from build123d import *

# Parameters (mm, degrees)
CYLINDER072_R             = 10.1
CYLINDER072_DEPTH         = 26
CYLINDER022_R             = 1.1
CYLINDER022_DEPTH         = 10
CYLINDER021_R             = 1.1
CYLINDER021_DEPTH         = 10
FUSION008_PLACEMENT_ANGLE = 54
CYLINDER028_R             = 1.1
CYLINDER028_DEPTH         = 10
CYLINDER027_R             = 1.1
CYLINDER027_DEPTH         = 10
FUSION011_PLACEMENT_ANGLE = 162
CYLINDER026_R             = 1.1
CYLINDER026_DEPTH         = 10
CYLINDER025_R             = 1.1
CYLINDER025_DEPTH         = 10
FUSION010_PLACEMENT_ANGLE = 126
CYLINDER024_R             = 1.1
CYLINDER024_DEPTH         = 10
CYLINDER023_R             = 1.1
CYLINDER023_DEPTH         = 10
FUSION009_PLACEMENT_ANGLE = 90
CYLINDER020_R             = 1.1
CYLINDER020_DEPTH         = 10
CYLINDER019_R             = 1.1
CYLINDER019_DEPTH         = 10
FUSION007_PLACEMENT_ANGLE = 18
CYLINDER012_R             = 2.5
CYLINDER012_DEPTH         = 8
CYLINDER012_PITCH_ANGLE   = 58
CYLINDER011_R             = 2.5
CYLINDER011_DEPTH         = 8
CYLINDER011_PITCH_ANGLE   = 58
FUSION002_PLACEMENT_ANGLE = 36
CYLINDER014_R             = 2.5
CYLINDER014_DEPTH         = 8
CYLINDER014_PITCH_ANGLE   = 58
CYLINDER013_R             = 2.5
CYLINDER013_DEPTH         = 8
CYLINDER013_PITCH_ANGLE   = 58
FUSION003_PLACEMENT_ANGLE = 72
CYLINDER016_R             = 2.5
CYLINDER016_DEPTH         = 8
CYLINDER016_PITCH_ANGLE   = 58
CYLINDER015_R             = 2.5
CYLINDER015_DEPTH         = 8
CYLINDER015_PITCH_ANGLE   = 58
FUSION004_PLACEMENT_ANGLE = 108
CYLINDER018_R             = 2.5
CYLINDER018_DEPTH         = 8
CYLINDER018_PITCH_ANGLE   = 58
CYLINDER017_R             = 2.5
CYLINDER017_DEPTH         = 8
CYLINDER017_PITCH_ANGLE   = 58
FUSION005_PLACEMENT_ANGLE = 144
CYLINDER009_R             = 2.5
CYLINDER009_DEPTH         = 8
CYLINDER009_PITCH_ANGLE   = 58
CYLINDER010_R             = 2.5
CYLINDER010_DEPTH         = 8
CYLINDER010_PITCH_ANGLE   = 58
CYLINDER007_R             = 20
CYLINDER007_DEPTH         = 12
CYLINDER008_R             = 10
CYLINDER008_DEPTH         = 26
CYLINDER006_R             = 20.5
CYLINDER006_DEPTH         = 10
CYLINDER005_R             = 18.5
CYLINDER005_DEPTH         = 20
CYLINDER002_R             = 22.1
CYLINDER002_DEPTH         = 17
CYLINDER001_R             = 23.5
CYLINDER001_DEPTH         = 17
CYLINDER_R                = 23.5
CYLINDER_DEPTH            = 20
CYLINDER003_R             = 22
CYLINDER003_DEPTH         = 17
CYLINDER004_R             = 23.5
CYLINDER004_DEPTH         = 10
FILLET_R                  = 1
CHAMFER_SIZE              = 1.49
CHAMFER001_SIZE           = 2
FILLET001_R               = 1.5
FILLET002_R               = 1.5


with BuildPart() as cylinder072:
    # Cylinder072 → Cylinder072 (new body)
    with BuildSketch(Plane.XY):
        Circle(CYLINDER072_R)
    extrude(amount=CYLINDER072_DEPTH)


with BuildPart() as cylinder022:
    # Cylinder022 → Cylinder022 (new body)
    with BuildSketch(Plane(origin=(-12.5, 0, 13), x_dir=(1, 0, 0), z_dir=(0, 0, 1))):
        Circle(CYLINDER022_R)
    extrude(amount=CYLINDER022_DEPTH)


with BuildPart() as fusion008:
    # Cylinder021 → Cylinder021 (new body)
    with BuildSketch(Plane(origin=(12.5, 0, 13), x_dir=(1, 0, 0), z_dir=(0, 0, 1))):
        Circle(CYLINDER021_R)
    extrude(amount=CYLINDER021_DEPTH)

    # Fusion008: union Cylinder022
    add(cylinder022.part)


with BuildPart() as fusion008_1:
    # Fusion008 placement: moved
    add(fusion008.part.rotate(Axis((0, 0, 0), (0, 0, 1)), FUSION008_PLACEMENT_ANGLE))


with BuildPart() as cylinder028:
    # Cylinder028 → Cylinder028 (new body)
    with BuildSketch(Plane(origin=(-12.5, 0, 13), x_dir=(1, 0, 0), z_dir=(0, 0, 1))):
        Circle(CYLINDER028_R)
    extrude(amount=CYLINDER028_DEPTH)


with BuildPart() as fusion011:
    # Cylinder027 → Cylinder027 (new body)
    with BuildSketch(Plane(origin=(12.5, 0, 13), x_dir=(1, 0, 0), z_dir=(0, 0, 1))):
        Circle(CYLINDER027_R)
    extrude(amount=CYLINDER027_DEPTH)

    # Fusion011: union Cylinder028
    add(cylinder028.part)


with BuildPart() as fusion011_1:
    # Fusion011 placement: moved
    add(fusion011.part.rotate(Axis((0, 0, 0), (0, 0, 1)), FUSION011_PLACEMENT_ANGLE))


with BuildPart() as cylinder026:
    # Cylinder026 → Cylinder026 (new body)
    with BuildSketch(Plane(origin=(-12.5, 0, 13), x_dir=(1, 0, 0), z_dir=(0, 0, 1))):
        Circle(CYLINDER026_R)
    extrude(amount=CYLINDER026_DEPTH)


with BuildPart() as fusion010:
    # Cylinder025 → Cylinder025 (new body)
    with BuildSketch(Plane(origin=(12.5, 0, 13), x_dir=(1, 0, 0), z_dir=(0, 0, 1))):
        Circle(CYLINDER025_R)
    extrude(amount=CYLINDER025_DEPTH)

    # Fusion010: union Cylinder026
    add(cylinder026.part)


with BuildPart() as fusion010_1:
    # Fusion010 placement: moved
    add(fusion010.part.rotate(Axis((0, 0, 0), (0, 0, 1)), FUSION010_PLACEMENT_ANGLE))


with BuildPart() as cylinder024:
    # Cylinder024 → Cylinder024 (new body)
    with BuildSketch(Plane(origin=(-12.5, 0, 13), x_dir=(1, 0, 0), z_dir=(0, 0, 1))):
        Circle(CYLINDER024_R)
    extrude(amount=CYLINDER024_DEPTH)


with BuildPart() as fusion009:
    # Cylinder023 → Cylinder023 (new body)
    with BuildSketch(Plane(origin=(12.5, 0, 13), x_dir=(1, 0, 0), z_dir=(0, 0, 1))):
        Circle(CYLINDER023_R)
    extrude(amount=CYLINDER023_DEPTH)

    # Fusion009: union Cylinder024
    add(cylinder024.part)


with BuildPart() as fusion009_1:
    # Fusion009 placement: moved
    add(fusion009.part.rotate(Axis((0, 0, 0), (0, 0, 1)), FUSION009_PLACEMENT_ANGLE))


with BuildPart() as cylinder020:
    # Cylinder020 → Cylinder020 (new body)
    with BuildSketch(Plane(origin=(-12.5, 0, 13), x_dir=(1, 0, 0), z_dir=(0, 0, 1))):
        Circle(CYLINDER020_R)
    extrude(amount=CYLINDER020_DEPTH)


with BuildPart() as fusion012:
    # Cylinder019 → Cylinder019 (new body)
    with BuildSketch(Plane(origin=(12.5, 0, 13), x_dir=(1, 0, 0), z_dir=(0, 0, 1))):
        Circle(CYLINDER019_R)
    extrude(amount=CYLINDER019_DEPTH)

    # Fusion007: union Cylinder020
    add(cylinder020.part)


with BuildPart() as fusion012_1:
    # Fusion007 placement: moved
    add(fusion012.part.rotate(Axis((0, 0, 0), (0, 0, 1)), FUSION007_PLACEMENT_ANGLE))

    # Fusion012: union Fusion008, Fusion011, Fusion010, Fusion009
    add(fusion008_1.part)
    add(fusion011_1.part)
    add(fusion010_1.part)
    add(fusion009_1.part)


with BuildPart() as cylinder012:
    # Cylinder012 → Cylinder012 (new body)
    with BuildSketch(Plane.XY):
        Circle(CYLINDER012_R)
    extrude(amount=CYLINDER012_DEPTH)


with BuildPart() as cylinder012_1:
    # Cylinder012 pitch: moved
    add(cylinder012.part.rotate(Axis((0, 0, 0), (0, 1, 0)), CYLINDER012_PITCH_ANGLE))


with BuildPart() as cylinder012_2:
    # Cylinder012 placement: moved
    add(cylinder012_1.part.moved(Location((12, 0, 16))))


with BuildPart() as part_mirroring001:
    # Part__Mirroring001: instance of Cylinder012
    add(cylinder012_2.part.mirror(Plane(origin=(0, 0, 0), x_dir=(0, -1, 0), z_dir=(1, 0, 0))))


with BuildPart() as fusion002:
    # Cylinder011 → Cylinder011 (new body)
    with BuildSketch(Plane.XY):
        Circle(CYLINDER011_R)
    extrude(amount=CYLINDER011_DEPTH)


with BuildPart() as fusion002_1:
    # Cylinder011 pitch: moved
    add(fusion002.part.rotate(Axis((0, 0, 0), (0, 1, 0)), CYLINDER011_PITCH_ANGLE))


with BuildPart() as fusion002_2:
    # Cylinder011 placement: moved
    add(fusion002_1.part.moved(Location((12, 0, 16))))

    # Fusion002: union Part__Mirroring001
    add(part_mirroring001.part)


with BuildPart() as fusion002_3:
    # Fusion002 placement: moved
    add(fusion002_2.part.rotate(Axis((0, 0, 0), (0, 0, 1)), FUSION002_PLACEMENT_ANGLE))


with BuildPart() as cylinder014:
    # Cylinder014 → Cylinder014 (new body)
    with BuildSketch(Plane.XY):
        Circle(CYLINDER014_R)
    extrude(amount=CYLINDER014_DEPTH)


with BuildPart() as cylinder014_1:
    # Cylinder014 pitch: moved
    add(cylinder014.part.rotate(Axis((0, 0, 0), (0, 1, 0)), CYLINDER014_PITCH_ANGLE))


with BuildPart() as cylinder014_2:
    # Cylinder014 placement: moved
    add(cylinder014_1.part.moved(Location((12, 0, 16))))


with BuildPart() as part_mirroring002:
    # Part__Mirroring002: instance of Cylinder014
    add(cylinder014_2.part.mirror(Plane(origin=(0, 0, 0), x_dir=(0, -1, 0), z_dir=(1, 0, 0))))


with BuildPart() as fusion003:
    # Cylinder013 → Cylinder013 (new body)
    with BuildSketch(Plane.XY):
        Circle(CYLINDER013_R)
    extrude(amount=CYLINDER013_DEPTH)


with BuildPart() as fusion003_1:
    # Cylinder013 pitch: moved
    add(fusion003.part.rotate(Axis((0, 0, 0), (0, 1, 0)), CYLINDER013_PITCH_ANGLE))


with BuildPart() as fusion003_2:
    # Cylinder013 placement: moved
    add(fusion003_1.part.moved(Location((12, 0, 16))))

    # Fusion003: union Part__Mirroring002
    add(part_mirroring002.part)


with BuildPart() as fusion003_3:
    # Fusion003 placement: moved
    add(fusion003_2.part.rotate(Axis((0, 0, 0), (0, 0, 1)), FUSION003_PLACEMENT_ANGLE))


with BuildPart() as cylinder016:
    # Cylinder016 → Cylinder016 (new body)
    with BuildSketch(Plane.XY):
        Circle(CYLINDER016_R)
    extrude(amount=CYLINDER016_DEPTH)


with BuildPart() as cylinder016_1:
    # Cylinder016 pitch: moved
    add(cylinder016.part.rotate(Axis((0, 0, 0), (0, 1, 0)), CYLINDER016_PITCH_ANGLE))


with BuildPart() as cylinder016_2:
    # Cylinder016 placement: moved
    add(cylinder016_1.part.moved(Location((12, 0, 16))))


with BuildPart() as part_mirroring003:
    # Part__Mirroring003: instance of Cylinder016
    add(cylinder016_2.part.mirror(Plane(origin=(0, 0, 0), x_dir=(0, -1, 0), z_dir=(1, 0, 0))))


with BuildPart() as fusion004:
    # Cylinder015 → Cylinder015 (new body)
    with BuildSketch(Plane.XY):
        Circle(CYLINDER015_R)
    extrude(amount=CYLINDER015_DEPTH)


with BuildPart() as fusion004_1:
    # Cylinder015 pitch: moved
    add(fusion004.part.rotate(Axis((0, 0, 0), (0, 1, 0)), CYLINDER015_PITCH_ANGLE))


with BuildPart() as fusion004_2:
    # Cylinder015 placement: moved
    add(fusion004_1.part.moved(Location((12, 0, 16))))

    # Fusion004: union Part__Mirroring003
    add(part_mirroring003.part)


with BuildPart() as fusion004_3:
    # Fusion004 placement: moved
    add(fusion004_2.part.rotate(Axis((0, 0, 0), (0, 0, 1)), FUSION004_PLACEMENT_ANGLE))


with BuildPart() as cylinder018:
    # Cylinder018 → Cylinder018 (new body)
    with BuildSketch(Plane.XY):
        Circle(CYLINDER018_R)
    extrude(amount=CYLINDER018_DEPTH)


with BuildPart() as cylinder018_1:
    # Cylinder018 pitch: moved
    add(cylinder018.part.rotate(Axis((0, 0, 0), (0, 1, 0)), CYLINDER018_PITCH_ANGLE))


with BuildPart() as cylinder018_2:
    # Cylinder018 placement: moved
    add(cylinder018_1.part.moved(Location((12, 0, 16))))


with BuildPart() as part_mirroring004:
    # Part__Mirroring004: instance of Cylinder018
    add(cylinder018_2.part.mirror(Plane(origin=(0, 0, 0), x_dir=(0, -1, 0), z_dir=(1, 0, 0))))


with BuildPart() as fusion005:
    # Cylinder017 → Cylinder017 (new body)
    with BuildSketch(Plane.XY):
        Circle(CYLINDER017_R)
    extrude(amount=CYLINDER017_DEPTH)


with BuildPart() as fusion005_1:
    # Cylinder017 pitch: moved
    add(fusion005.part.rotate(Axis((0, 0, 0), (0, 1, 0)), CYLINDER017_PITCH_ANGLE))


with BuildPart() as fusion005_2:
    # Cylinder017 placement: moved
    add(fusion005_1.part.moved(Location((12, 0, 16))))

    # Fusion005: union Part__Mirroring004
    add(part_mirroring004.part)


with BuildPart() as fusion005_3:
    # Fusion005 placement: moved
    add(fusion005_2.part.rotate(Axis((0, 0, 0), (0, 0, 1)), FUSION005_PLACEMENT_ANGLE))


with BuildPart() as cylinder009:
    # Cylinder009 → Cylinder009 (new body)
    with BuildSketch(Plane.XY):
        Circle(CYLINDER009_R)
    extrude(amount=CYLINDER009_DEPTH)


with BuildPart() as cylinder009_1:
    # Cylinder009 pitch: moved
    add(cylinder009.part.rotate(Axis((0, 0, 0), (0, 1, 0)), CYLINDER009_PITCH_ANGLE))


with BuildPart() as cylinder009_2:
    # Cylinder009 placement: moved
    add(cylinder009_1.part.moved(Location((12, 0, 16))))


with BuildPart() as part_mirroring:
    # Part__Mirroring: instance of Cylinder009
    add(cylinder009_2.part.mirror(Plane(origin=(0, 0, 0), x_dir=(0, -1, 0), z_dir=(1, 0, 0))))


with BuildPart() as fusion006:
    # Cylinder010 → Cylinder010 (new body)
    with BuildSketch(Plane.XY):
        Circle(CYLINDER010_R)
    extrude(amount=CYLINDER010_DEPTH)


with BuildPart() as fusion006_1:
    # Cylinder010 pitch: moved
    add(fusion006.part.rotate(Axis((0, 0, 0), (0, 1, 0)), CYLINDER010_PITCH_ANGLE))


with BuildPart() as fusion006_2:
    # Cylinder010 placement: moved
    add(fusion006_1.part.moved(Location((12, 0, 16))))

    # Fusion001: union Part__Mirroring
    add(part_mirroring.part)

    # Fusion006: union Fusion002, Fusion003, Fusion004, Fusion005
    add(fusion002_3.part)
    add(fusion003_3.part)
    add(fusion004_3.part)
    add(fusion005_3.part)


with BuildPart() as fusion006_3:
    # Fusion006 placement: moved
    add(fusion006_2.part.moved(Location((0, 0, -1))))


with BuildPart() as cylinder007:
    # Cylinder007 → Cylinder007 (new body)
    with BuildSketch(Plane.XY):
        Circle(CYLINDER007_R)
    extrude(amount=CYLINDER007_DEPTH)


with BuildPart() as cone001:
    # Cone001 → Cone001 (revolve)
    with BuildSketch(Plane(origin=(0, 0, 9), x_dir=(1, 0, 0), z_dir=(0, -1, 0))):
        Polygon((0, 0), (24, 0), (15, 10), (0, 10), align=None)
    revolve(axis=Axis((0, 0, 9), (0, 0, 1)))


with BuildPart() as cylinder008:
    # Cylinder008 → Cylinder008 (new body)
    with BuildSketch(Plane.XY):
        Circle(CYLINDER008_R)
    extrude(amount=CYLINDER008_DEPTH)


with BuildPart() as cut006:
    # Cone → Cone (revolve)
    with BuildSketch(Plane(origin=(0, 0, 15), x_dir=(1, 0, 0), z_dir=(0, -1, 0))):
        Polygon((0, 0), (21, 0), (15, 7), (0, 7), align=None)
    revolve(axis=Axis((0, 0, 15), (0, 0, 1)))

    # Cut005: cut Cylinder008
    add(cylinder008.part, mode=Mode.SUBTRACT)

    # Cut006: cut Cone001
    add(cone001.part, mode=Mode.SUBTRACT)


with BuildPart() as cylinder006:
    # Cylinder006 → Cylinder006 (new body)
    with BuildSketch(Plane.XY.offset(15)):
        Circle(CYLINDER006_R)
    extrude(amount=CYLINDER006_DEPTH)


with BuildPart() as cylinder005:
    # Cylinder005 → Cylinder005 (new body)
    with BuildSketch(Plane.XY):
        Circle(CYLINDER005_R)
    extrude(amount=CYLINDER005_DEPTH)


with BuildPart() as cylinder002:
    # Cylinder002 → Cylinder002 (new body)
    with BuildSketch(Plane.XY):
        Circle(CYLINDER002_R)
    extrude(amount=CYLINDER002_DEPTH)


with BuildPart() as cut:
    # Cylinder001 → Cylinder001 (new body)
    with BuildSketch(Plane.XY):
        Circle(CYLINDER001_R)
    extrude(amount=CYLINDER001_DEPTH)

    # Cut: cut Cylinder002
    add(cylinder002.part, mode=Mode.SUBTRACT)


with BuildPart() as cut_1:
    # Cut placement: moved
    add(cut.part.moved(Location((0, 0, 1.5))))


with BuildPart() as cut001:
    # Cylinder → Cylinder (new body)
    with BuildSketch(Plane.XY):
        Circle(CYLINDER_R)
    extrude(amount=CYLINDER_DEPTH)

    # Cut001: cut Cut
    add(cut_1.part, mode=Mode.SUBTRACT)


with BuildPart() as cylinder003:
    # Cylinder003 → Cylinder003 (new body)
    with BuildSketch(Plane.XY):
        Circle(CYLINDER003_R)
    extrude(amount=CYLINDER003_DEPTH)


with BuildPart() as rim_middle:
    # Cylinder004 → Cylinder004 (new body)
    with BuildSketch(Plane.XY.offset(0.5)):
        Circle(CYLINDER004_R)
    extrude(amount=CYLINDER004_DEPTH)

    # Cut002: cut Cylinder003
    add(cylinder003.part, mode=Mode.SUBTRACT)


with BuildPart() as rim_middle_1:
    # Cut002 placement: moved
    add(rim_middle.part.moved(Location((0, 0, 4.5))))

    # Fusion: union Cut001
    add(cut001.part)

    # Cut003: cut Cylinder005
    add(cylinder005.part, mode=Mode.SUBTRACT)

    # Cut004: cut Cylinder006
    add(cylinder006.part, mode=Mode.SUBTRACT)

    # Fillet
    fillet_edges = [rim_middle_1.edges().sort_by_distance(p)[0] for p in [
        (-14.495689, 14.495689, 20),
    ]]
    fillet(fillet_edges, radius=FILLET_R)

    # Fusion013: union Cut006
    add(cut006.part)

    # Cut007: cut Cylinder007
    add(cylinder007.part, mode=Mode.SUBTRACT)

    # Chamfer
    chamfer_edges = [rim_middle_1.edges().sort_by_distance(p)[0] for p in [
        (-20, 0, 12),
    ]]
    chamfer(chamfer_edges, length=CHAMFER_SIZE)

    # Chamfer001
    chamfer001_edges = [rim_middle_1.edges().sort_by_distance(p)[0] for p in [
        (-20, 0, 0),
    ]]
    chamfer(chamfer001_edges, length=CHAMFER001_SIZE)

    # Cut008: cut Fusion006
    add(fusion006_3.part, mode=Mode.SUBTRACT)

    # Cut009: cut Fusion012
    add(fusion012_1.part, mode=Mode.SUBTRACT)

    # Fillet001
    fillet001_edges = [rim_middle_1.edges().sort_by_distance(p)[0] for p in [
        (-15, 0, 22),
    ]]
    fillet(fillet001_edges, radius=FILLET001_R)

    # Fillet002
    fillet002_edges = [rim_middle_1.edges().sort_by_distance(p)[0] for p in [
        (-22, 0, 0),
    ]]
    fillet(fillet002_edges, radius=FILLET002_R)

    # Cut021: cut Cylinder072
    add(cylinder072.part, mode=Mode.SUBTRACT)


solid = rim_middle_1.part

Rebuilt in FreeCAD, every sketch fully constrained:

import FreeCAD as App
import Part
import Sketcher
from FreeCAD import Vector
Q = App.Units.Quantity


def edges_at(feature, points):
    """Names of the edges that pass closest to the given points."""
    edges = feature.Shape.Edges
    near = lambda p: min(range(len(edges)), key=lambda i: edges[i].distToShape(Part.Vertex(*p))[0])
    return sorted({f"Edge{near(p) + 1}" for p in points})


def add_polygon(sketch, points):
    """Adds a closed chain of lines whose ends are joined by coincident constraints."""
    first, n = sketch.GeometryCount, len(points)
    for a, b in zip(points, points[1:] + points[:1]):
        sketch.addGeometry(Part.LineSegment(App.Vector(*a, 0), App.Vector(*b, 0)), False)
    for i in range(n):
        sketch.addConstraint(Sketcher.Constraint("Coincident", first + i, 2, first + (i + 1) % n, 1))

doc = App.newDocument("Part")
body = doc.addObject("PartDesign::Body", "Body")

# Sketch on XY plane
sketch1 = body.newObject("Sketcher::SketchObject", "Sketch")
sketch1.AttachmentSupport = (doc.getObject("XY_Plane"), [""])
sketch1.MapMode = "FlatFace"
sketch1.addGeometry(Part.Circle(Vector(0, 0, 0), Vector(0, 0, 1), 10), False)
sketch1.addConstraint([
    Sketcher.Constraint("Coincident", 0, 3, -1, 1),
    Sketcher.Constraint("Diameter", 0, Q("20.2 mm")),
])
pad1 = body.newObject("PartDesign::Pad", "Pad")
pad1.Profile = sketch1
pad1.Length = 26
body2 = doc.addObject("PartDesign::Body", "Body001")

# Sketch on XY plane
sketch2 = body2.newObject("Sketcher::SketchObject", "Sketch001")
sketch2.AttachmentSupport = (doc.getObject("XY_Plane001"), [""])
sketch2.MapMode = "FlatFace"
sketch2.AttachmentOffset = App.Placement(Vector(0, 0, 13), App.Rotation())
sketch2.addGeometry(Part.Circle(Vector(-12.5, 0, 0), Vector(0, 0, 1), 1.1), False)
sketch2.addConstraint([
    Sketcher.Constraint("PointOnObject", 0, 3, -1),
    Sketcher.Constraint("Diameter", 0, Q("2.2 mm")),
    Sketcher.Constraint("DistanceX", 0, 3, -1, 1, Q("12.5 mm")),
])
pad2 = body2.newObject("PartDesign::Pad", "Pad001")
pad2.Profile = sketch2
pad2.Length = 10
body3 = doc.addObject("PartDesign::Body", "Body002")
body3.AllowCompound = True

# Sketch on XY plane
sketch3 = body3.newObject("Sketcher::SketchObject", "Sketch002")
sketch3.AttachmentSupport = (doc.getObject("XY_Plane002"), [""])
sketch3.MapMode = "FlatFace"
sketch3.AttachmentOffset = App.Placement(Vector(0, 0, 13), App.Rotation())
sketch3.addGeometry(Part.Circle(Vector(12.5, 0, 0), Vector(0, 0, 1), 1.1), False)
sketch3.addConstraint([
    Sketcher.Constraint("PointOnObject", 0, 3, -1),
    Sketcher.Constraint("Diameter", 0, Q("2.2 mm")),
    Sketcher.Constraint("DistanceX", -1, 1, 0, 3, Q("12.5 mm")),
])
pad3 = body3.newObject("PartDesign::Pad", "Pad002")
pad3.Profile = sketch3
pad3.Length = 10
doc.recompute()

boolean = body3.newObject("PartDesign::Boolean", "Boolean")
boolean.Type = "Fuse"
boolean.addObjects([body2])
body4 = doc.addObject("PartDesign::Body", "Body003")
body4.AllowCompound = True
doc.recompute()

body3.Placement = App.Placement(Vector(0, 0, 0), App.Rotation(Vector(0, 0, 1), 54))
boolean2 = body4.newObject("PartDesign::Boolean", "Boolean001")
boolean2.Type = "Fuse"
boolean2.addObjects([body3])
body5 = doc.addObject("PartDesign::Body", "Body004")

# Sketch on XY plane
sketch4 = body5.newObject("Sketcher::SketchObject", "Sketch003")
sketch4.AttachmentSupport = (doc.getObject("XY_Plane004"), [""])
sketch4.MapMode = "FlatFace"
sketch4.AttachmentOffset = App.Placement(Vector(0, 0, 13), App.Rotation())
sketch4.addGeometry(Part.Circle(Vector(-12.5, 0, 0), Vector(0, 0, 1), 1.1), False)
sketch4.addConstraint([
    Sketcher.Constraint("PointOnObject", 0, 3, -1),
    Sketcher.Constraint("Diameter", 0, Q("2.2 mm")),
    Sketcher.Constraint("DistanceX", 0, 3, -1, 1, Q("12.5 mm")),
])
pad4 = body5.newObject("PartDesign::Pad", "Pad003")
pad4.Profile = sketch4
pad4.Length = 10
body6 = doc.addObject("PartDesign::Body", "Body005")
body6.AllowCompound = True

# Sketch on XY plane
sketch5 = body6.newObject("Sketcher::SketchObject", "Sketch004")
sketch5.AttachmentSupport = (doc.getObject("XY_Plane005"), [""])
sketch5.MapMode = "FlatFace"
sketch5.AttachmentOffset = App.Placement(Vector(0, 0, 13), App.Rotation())
sketch5.addGeometry(Part.Circle(Vector(12.5, 0, 0), Vector(0, 0, 1), 1.1), False)
sketch5.addConstraint([
    Sketcher.Constraint("PointOnObject", 0, 3, -1),
    Sketcher.Constraint("Diameter", 0, Q("2.2 mm")),
    Sketcher.Constraint("DistanceX", -1, 1, 0, 3, Q("12.5 mm")),
])
pad5 = body6.newObject("PartDesign::Pad", "Pad004")
pad5.Profile = sketch5
pad5.Length = 10
doc.recompute()

boolean3 = body6.newObject("PartDesign::Boolean", "Boolean002")
boolean3.Type = "Fuse"
boolean3.addObjects([body5])
body7 = doc.addObject("PartDesign::Body", "Body006")
body7.AllowCompound = True
doc.recompute()

body6.Placement = App.Placement(Vector(0, 0, 0), App.Rotation(Vector(0, 0, 1), 162))
boolean4 = body7.newObject("PartDesign::Boolean", "Boolean003")
boolean4.Type = "Fuse"
boolean4.addObjects([body6])
body8 = doc.addObject("PartDesign::Body", "Body007")

# Sketch on XY plane
sketch6 = body8.newObject("Sketcher::SketchObject", "Sketch005")
sketch6.AttachmentSupport = (doc.getObject("XY_Plane007"), [""])
sketch6.MapMode = "FlatFace"
sketch6.AttachmentOffset = App.Placement(Vector(0, 0, 13), App.Rotation())
sketch6.addGeometry(Part.Circle(Vector(-12.5, 0, 0), Vector(0, 0, 1), 1.1), False)
sketch6.addConstraint([
    Sketcher.Constraint("PointOnObject", 0, 3, -1),
    Sketcher.Constraint("Diameter", 0, Q("2.2 mm")),
    Sketcher.Constraint("DistanceX", 0, 3, -1, 1, Q("12.5 mm")),
])
pad6 = body8.newObject("PartDesign::Pad", "Pad005")
pad6.Profile = sketch6
pad6.Length = 10
body9 = doc.addObject("PartDesign::Body", "Body008")
body9.AllowCompound = True

# Sketch on XY plane
sketch7 = body9.newObject("Sketcher::SketchObject", "Sketch006")
sketch7.AttachmentSupport = (doc.getObject("XY_Plane008"), [""])
sketch7.MapMode = "FlatFace"
sketch7.AttachmentOffset = App.Placement(Vector(0, 0, 13), App.Rotation())
sketch7.addGeometry(Part.Circle(Vector(12.5, 0, 0), Vector(0, 0, 1), 1.1), False)
sketch7.addConstraint([
    Sketcher.Constraint("PointOnObject", 0, 3, -1),
    Sketcher.Constraint("Diameter", 0, Q("2.2 mm")),
    Sketcher.Constraint("DistanceX", -1, 1, 0, 3, Q("12.5 mm")),
])
pad7 = body9.newObject("PartDesign::Pad", "Pad006")
pad7.Profile = sketch7
pad7.Length = 10
doc.recompute()

boolean5 = body9.newObject("PartDesign::Boolean", "Boolean004")
boolean5.Type = "Fuse"
boolean5.addObjects([body8])
body10 = doc.addObject("PartDesign::Body", "Body009")
body10.AllowCompound = True
doc.recompute()

body9.Placement = App.Placement(Vector(0, 0, 0), App.Rotation(Vector(0, 0, 1), 126))
boolean6 = body10.newObject("PartDesign::Boolean", "Boolean005")
boolean6.Type = "Fuse"
boolean6.addObjects([body9])
body11 = doc.addObject("PartDesign::Body", "Body010")

# Sketch on XY plane
sketch8 = body11.newObject("Sketcher::SketchObject", "Sketch007")
sketch8.AttachmentSupport = (doc.getObject("XY_Plane010"), [""])
sketch8.MapMode = "FlatFace"
sketch8.AttachmentOffset = App.Placement(Vector(0, 0, 13), App.Rotation())
sketch8.addGeometry(Part.Circle(Vector(-12.5, 0, 0), Vector(0, 0, 1), 1.1), False)
sketch8.addConstraint([
    Sketcher.Constraint("PointOnObject", 0, 3, -1),
    Sketcher.Constraint("Diameter", 0, Q("2.2 mm")),
    Sketcher.Constraint("DistanceX", 0, 3, -1, 1, Q("12.5 mm")),
])
pad8 = body11.newObject("PartDesign::Pad", "Pad007")
pad8.Profile = sketch8
pad8.Length = 10
body12 = doc.addObject("PartDesign::Body", "Body011")
body12.AllowCompound = True

# Sketch on XY plane
sketch9 = body12.newObject("Sketcher::SketchObject", "Sketch008")
sketch9.AttachmentSupport = (doc.getObject("XY_Plane011"), [""])
sketch9.MapMode = "FlatFace"
sketch9.AttachmentOffset = App.Placement(Vector(0, 0, 13), App.Rotation())
sketch9.addGeometry(Part.Circle(Vector(12.5, 0, 0), Vector(0, 0, 1), 1.1), False)
sketch9.addConstraint([
    Sketcher.Constraint("PointOnObject", 0, 3, -1),
    Sketcher.Constraint("Diameter", 0, Q("2.2 mm")),
    Sketcher.Constraint("DistanceX", -1, 1, 0, 3, Q("12.5 mm")),
])
pad9 = body12.newObject("PartDesign::Pad", "Pad008")
pad9.Profile = sketch9
pad9.Length = 10
doc.recompute()

boolean7 = body12.newObject("PartDesign::Boolean", "Boolean006")
boolean7.Type = "Fuse"
boolean7.addObjects([body11])
body13 = doc.addObject("PartDesign::Body", "Body012")
body13.AllowCompound = True
doc.recompute()

body12.Placement = App.Placement(Vector(0, 0, 0), App.Rotation(Vector(0, 0, 1), 90))
boolean8 = body13.newObject("PartDesign::Boolean", "Boolean007")
boolean8.Type = "Fuse"
boolean8.addObjects([body12])
body14 = doc.addObject("PartDesign::Body", "Body013")

# Sketch on XY plane
sketch10 = body14.newObject("Sketcher::SketchObject", "Sketch009")
sketch10.AttachmentSupport = (doc.getObject("XY_Plane013"), [""])
sketch10.MapMode = "FlatFace"
sketch10.AttachmentOffset = App.Placement(Vector(0, 0, 13), App.Rotation())
sketch10.addGeometry(Part.Circle(Vector(-12.5, 0, 0), Vector(0, 0, 1), 1.1), False)
sketch10.addConstraint([
    Sketcher.Constraint("PointOnObject", 0, 3, -1),
    Sketcher.Constraint("Diameter", 0, Q("2.2 mm")),
    Sketcher.Constraint("DistanceX", 0, 3, -1, 1, Q("12.5 mm")),
])
pad10 = body14.newObject("PartDesign::Pad", "Pad009")
pad10.Profile = sketch10
pad10.Length = 10
body15 = doc.addObject("PartDesign::Body", "Body014")
body15.AllowCompound = True

# Sketch on XY plane
sketch11 = body15.newObject("Sketcher::SketchObject", "Sketch010")
sketch11.AttachmentSupport = (doc.getObject("XY_Plane014"), [""])
sketch11.MapMode = "FlatFace"
sketch11.AttachmentOffset = App.Placement(Vector(0, 0, 13), App.Rotation())
sketch11.addGeometry(Part.Circle(Vector(12.5, 0, 0), Vector(0, 0, 1), 1.1), False)
sketch11.addConstraint([
    Sketcher.Constraint("PointOnObject", 0, 3, -1),
    Sketcher.Constraint("Diameter", 0, Q("2.2 mm")),
    Sketcher.Constraint("DistanceX", -1, 1, 0, 3, Q("12.5 mm")),
])
pad11 = body15.newObject("PartDesign::Pad", "Pad010")
pad11.Profile = sketch11
pad11.Length = 10
doc.recompute()

boolean9 = body15.newObject("PartDesign::Boolean", "Boolean008")
boolean9.Type = "Fuse"
boolean9.addObjects([body14])
body16 = doc.addObject("PartDesign::Body", "Body015")
body16.AllowCompound = True
doc.recompute()

body15.Placement = App.Placement(Vector(0, 0, 0), App.Rotation(Vector(0, 0, 1), 18))
boolean10 = body16.newObject("PartDesign::Boolean", "Boolean009")
boolean10.Type = "Fuse"
boolean10.addObjects([body15])
doc.recompute()

boolean11 = body16.newObject("PartDesign::Boolean", "Boolean010")
boolean11.Type = "Fuse"
boolean11.addObjects([body4])
doc.recompute()

boolean12 = body16.newObject("PartDesign::Boolean", "Boolean011")
boolean12.Type = "Fuse"
boolean12.addObjects([body7])
doc.recompute()

boolean13 = body16.newObject("PartDesign::Boolean", "Boolean012")
boolean13.Type = "Fuse"
boolean13.addObjects([body10])
doc.recompute()

boolean14 = body16.newObject("PartDesign::Boolean", "Boolean013")
boolean14.Type = "Fuse"
boolean14.addObjects([body13])
body17 = doc.addObject("PartDesign::Body", "Body016")

# Sketch on XY plane
sketch12 = body17.newObject("Sketcher::SketchObject", "Sketch011")
sketch12.AttachmentSupport = (doc.getObject("XY_Plane016"), [""])
sketch12.MapMode = "FlatFace"
sketch12.addGeometry(Part.Circle(Vector(0, 0, 0), Vector(0, 0, 1), 2.5), False)
sketch12.addConstraint([
    Sketcher.Constraint("Coincident", 0, 3, -1, 1),
    Sketcher.Constraint("Diameter", 0, Q("5 mm")),
])
pad12 = body17.newObject("PartDesign::Pad", "Pad011")
pad12.Profile = sketch12
pad12.Length = 8
body18 = doc.addObject("PartDesign::Body", "Body017")
doc.recompute()

body17.Placement = App.Placement(Vector(0, 0, 0), App.Rotation(Vector(0, 1, 0), 58))
boolean15 = body18.newObject("PartDesign::Boolean", "Boolean014")
boolean15.Type = "Fuse"
boolean15.addObjects([body17])
body19 = doc.addObject("PartDesign::Body", "Body018")
doc.recompute()

body18.Placement = App.Placement(Vector(12, 0, 16), App.Rotation(Vector(0, 0, 1), 0))
boolean16 = body19.newObject("PartDesign::Boolean", "Boolean015")
boolean16.Type = "Fuse"
boolean16.addObjects([body18])
body20 = doc.addObject("PartDesign::Body", "Body019")
doc.recompute()

mirroring = doc.addObject("Part::Mirroring", "Mirroring")
mirroring.Source = body19
mirroring.Base = Vector(0, 0, 0)
mirroring.Normal = Vector(1, 0, 0)
body20.BaseFeature = mirroring
doc.recompute()
body21 = doc.addObject("PartDesign::Body", "Body020")

# Sketch on XY plane
sketch13 = body21.newObject("Sketcher::SketchObject", "Sketch012")
sketch13.AttachmentSupport = (doc.getObject("XY_Plane020"), [""])
sketch13.MapMode = "FlatFace"
sketch13.addGeometry(Part.Circle(Vector(0, 0, 0), Vector(0, 0, 1), 2.5), False)
sketch13.addConstraint([
    Sketcher.Constraint("Coincident", 0, 3, -1, 1),
    Sketcher.Constraint("Diameter", 0, Q("5 mm")),
])
pad13 = body21.newObject("PartDesign::Pad", "Pad012")
pad13.Profile = sketch13
pad13.Length = 8
body22 = doc.addObject("PartDesign::Body", "Body021")
doc.recompute()

body21.Placement = App.Placement(Vector(0, 0, 0), App.Rotation(Vector(0, 1, 0), 58))
boolean17 = body22.newObject("PartDesign::Boolean", "Boolean016")
boolean17.Type = "Fuse"
boolean17.addObjects([body21])
body23 = doc.addObject("PartDesign::Body", "Body022")
body23.AllowCompound = True
doc.recompute()

body22.Placement = App.Placement(Vector(12, 0, 16), App.Rotation(Vector(0, 0, 1), 0))
boolean18 = body23.newObject("PartDesign::Boolean", "Boolean017")
boolean18.Type = "Fuse"
boolean18.addObjects([body22])
doc.recompute()

boolean19 = body23.newObject("PartDesign::Boolean", "Boolean018")
boolean19.Type = "Fuse"
boolean19.addObjects([body20])
body24 = doc.addObject("PartDesign::Body", "Body023")
body24.AllowCompound = True
doc.recompute()

body23.Placement = App.Placement(Vector(0, 0, 0), App.Rotation(Vector(0, 0, 1), 36))
boolean20 = body24.newObject("PartDesign::Boolean", "Boolean019")
boolean20.Type = "Fuse"
boolean20.addObjects([body23])
body25 = doc.addObject("PartDesign::Body", "Body024")

# Sketch on XY plane
sketch14 = body25.newObject("Sketcher::SketchObject", "Sketch013")
sketch14.AttachmentSupport = (doc.getObject("XY_Plane024"), [""])
sketch14.MapMode = "FlatFace"
sketch14.addGeometry(Part.Circle(Vector(0, 0, 0), Vector(0, 0, 1), 2.5), False)
sketch14.addConstraint([
    Sketcher.Constraint("Coincident", 0, 3, -1, 1),
    Sketcher.Constraint("Diameter", 0, Q("5 mm")),
])
pad14 = body25.newObject("PartDesign::Pad", "Pad013")
pad14.Profile = sketch14
pad14.Length = 8
body26 = doc.addObject("PartDesign::Body", "Body025")
doc.recompute()

body25.Placement = App.Placement(Vector(0, 0, 0), App.Rotation(Vector(0, 1, 0), 58))
boolean21 = body26.newObject("PartDesign::Boolean", "Boolean020")
boolean21.Type = "Fuse"
boolean21.addObjects([body25])
body27 = doc.addObject("PartDesign::Body", "Body026")
doc.recompute()

body26.Placement = App.Placement(Vector(12, 0, 16), App.Rotation(Vector(0, 0, 1), 0))
boolean22 = body27.newObject("PartDesign::Boolean", "Boolean021")
boolean22.Type = "Fuse"
boolean22.addObjects([body26])
body28 = doc.addObject("PartDesign::Body", "Body027")
doc.recompute()

mirroring2 = doc.addObject("Part::Mirroring", "Mirroring001")
mirroring2.Source = body27
mirroring2.Base = Vector(0, 0, 0)
mirroring2.Normal = Vector(1, 0, 0)
body28.BaseFeature = mirroring2
doc.recompute()
body29 = doc.addObject("PartDesign::Body", "Body028")

# Sketch on XY plane
sketch15 = body29.newObject("Sketcher::SketchObject", "Sketch014")
sketch15.AttachmentSupport = (doc.getObject("XY_Plane028"), [""])
sketch15.MapMode = "FlatFace"
sketch15.addGeometry(Part.Circle(Vector(0, 0, 0), Vector(0, 0, 1), 2.5), False)
sketch15.addConstraint([
    Sketcher.Constraint("Coincident", 0, 3, -1, 1),
    Sketcher.Constraint("Diameter", 0, Q("5 mm")),
])
pad15 = body29.newObject("PartDesign::Pad", "Pad014")
pad15.Profile = sketch15
pad15.Length = 8
body30 = doc.addObject("PartDesign::Body", "Body029")
doc.recompute()

body29.Placement = App.Placement(Vector(0, 0, 0), App.Rotation(Vector(0, 1, 0), 58))
boolean23 = body30.newObject("PartDesign::Boolean", "Boolean022")
boolean23.Type = "Fuse"
boolean23.addObjects([body29])
body31 = doc.addObject("PartDesign::Body", "Body030")
body31.AllowCompound = True
doc.recompute()

body30.Placement = App.Placement(Vector(12, 0, 16), App.Rotation(Vector(0, 0, 1), 0))
boolean24 = body31.newObject("PartDesign::Boolean", "Boolean023")
boolean24.Type = "Fuse"
boolean24.addObjects([body30])
doc.recompute()

boolean25 = body31.newObject("PartDesign::Boolean", "Boolean024")
boolean25.Type = "Fuse"
boolean25.addObjects([body28])
body32 = doc.addObject("PartDesign::Body", "Body031")
body32.AllowCompound = True
doc.recompute()

body31.Placement = App.Placement(Vector(0, 0, 0), App.Rotation(Vector(0, 0, 1), 72))
boolean26 = body32.newObject("PartDesign::Boolean", "Boolean025")
boolean26.Type = "Fuse"
boolean26.addObjects([body31])
body33 = doc.addObject("PartDesign::Body", "Body032")

# Sketch on XY plane
sketch16 = body33.newObject("Sketcher::SketchObject", "Sketch015")
sketch16.AttachmentSupport = (doc.getObject("XY_Plane032"), [""])
sketch16.MapMode = "FlatFace"
sketch16.addGeometry(Part.Circle(Vector(0, 0, 0), Vector(0, 0, 1), 2.5), False)
sketch16.addConstraint([
    Sketcher.Constraint("Coincident", 0, 3, -1, 1),
    Sketcher.Constraint("Diameter", 0, Q("5 mm")),
])
pad16 = body33.newObject("PartDesign::Pad", "Pad015")
pad16.Profile = sketch16
pad16.Length = 8
body34 = doc.addObject("PartDesign::Body", "Body033")
doc.recompute()

body33.Placement = App.Placement(Vector(0, 0, 0), App.Rotation(Vector(0, 1, 0), 58))
boolean27 = body34.newObject("PartDesign::Boolean", "Boolean026")
boolean27.Type = "Fuse"
boolean27.addObjects([body33])
body35 = doc.addObject("PartDesign::Body", "Body034")
doc.recompute()

body34.Placement = App.Placement(Vector(12, 0, 16), App.Rotation(Vector(0, 0, 1), 0))
boolean28 = body35.newObject("PartDesign::Boolean", "Boolean027")
boolean28.Type = "Fuse"
boolean28.addObjects([body34])
body36 = doc.addObject("PartDesign::Body", "Body035")
doc.recompute()

mirroring3 = doc.addObject("Part::Mirroring", "Mirroring002")
mirroring3.Source = body35
mirroring3.Base = Vector(0, 0, 0)
mirroring3.Normal = Vector(1, 0, 0)
body36.BaseFeature = mirroring3
doc.recompute()
body37 = doc.addObject("PartDesign::Body", "Body036")

# Sketch on XY plane
sketch17 = body37.newObject("Sketcher::SketchObject", "Sketch016")
sketch17.AttachmentSupport = (doc.getObject("XY_Plane036"), [""])
sketch17.MapMode = "FlatFace"
sketch17.addGeometry(Part.Circle(Vector(0, 0, 0), Vector(0, 0, 1), 2.5), False)
sketch17.addConstraint([
    Sketcher.Constraint("Coincident", 0, 3, -1, 1),
    Sketcher.Constraint("Diameter", 0, Q("5 mm")),
])
pad17 = body37.newObject("PartDesign::Pad", "Pad016")
pad17.Profile = sketch17
pad17.Length = 8
body38 = doc.addObject("PartDesign::Body", "Body037")
doc.recompute()

body37.Placement = App.Placement(Vector(0, 0, 0), App.Rotation(Vector(0, 1, 0), 58))
boolean29 = body38.newObject("PartDesign::Boolean", "Boolean028")
boolean29.Type = "Fuse"
boolean29.addObjects([body37])
body39 = doc.addObject("PartDesign::Body", "Body038")
body39.AllowCompound = True
doc.recompute()

body38.Placement = App.Placement(Vector(12, 0, 16), App.Rotation(Vector(0, 0, 1), 0))
boolean30 = body39.newObject("PartDesign::Boolean", "Boolean029")
boolean30.Type = "Fuse"
boolean30.addObjects([body38])
doc.recompute()

boolean31 = body39.newObject("PartDesign::Boolean", "Boolean030")
boolean31.Type = "Fuse"
boolean31.addObjects([body36])
body40 = doc.addObject("PartDesign::Body", "Body039")
body40.AllowCompound = True
doc.recompute()

body39.Placement = App.Placement(Vector(0, 0, 0), App.Rotation(Vector(0, 0, 1), 108))
boolean32 = body40.newObject("PartDesign::Boolean", "Boolean031")
boolean32.Type = "Fuse"
boolean32.addObjects([body39])
body41 = doc.addObject("PartDesign::Body", "Body040")

# Sketch on XY plane
sketch18 = body41.newObject("Sketcher::SketchObject", "Sketch017")
sketch18.AttachmentSupport = (doc.getObject("XY_Plane040"), [""])
sketch18.MapMode = "FlatFace"
sketch18.addGeometry(Part.Circle(Vector(0, 0, 0), Vector(0, 0, 1), 2.5), False)
sketch18.addConstraint([
    Sketcher.Constraint("Coincident", 0, 3, -1, 1),
    Sketcher.Constraint("Diameter", 0, Q("5 mm")),
])
pad18 = body41.newObject("PartDesign::Pad", "Pad017")
pad18.Profile = sketch18
pad18.Length = 8
body42 = doc.addObject("PartDesign::Body", "Body041")
doc.recompute()

body41.Placement = App.Placement(Vector(0, 0, 0), App.Rotation(Vector(0, 1, 0), 58))
boolean33 = body42.newObject("PartDesign::Boolean", "Boolean032")
boolean33.Type = "Fuse"
boolean33.addObjects([body41])
body43 = doc.addObject("PartDesign::Body", "Body042")
doc.recompute()

body42.Placement = App.Placement(Vector(12, 0, 16), App.Rotation(Vector(0, 0, 1), 0))
boolean34 = body43.newObject("PartDesign::Boolean", "Boolean033")
boolean34.Type = "Fuse"
boolean34.addObjects([body42])
body44 = doc.addObject("PartDesign::Body", "Body043")
doc.recompute()

mirroring4 = doc.addObject("Part::Mirroring", "Mirroring003")
mirroring4.Source = body43
mirroring4.Base = Vector(0, 0, 0)
mirroring4.Normal = Vector(1, 0, 0)
body44.BaseFeature = mirroring4
doc.recompute()
body45 = doc.addObject("PartDesign::Body", "Body044")

# Sketch on XY plane
sketch19 = body45.newObject("Sketcher::SketchObject", "Sketch018")
sketch19.AttachmentSupport = (doc.getObject("XY_Plane044"), [""])
sketch19.MapMode = "FlatFace"
sketch19.addGeometry(Part.Circle(Vector(0, 0, 0), Vector(0, 0, 1), 2.5), False)
sketch19.addConstraint([
    Sketcher.Constraint("Coincident", 0, 3, -1, 1),
    Sketcher.Constraint("Diameter", 0, Q("5 mm")),
])
pad19 = body45.newObject("PartDesign::Pad", "Pad018")
pad19.Profile = sketch19
pad19.Length = 8
body46 = doc.addObject("PartDesign::Body", "Body045")
doc.recompute()

body45.Placement = App.Placement(Vector(0, 0, 0), App.Rotation(Vector(0, 1, 0), 58))
boolean35 = body46.newObject("PartDesign::Boolean", "Boolean034")
boolean35.Type = "Fuse"
boolean35.addObjects([body45])
body47 = doc.addObject("PartDesign::Body", "Body046")
body47.AllowCompound = True
doc.recompute()

body46.Placement = App.Placement(Vector(12, 0, 16), App.Rotation(Vector(0, 0, 1), 0))
boolean36 = body47.newObject("PartDesign::Boolean", "Boolean035")
boolean36.Type = "Fuse"
boolean36.addObjects([body46])
doc.recompute()

boolean37 = body47.newObject("PartDesign::Boolean", "Boolean036")
boolean37.Type = "Fuse"
boolean37.addObjects([body44])
body48 = doc.addObject("PartDesign::Body", "Body047")
body48.AllowCompound = True
doc.recompute()

body47.Placement = App.Placement(Vector(0, 0, 0), App.Rotation(Vector(0, 0, 1), 144))
boolean38 = body48.newObject("PartDesign::Boolean", "Boolean037")
boolean38.Type = "Fuse"
boolean38.addObjects([body47])
body49 = doc.addObject("PartDesign::Body", "Body048")

# Sketch on XY plane
sketch20 = body49.newObject("Sketcher::SketchObject", "Sketch019")
sketch20.AttachmentSupport = (doc.getObject("XY_Plane048"), [""])
sketch20.MapMode = "FlatFace"
sketch20.addGeometry(Part.Circle(Vector(0, 0, 0), Vector(0, 0, 1), 2.5), False)
sketch20.addConstraint([
    Sketcher.Constraint("Coincident", 0, 3, -1, 1),
    Sketcher.Constraint("Diameter", 0, Q("5 mm")),
])
pad20 = body49.newObject("PartDesign::Pad", "Pad019")
pad20.Profile = sketch20
pad20.Length = 8
body50 = doc.addObject("PartDesign::Body", "Body049")
doc.recompute()

body49.Placement = App.Placement(Vector(0, 0, 0), App.Rotation(Vector(0, 1, 0), 58))
boolean39 = body50.newObject("PartDesign::Boolean", "Boolean038")
boolean39.Type = "Fuse"
boolean39.addObjects([body49])
body51 = doc.addObject("PartDesign::Body", "Body050")
doc.recompute()

body50.Placement = App.Placement(Vector(12, 0, 16), App.Rotation(Vector(0, 0, 1), 0))
boolean40 = body51.newObject("PartDesign::Boolean", "Boolean039")
boolean40.Type = "Fuse"
boolean40.addObjects([body50])
body52 = doc.addObject("PartDesign::Body", "Body051")
doc.recompute()

mirroring5 = doc.addObject("Part::Mirroring", "Mirroring004")
mirroring5.Source = body51
mirroring5.Base = Vector(0, 0, 0)
mirroring5.Normal = Vector(1, 0, 0)
body52.BaseFeature = mirroring5
doc.recompute()
body53 = doc.addObject("PartDesign::Body", "Body052")

# Sketch on XY plane
sketch21 = body53.newObject("Sketcher::SketchObject", "Sketch020")
sketch21.AttachmentSupport = (doc.getObject("XY_Plane052"), [""])
sketch21.MapMode = "FlatFace"
sketch21.addGeometry(Part.Circle(Vector(0, 0, 0), Vector(0, 0, 1), 2.5), False)
sketch21.addConstraint([
    Sketcher.Constraint("Coincident", 0, 3, -1, 1),
    Sketcher.Constraint("Diameter", 0, Q("5 mm")),
])
pad21 = body53.newObject("PartDesign::Pad", "Pad020")
pad21.Profile = sketch21
pad21.Length = 8
body54 = doc.addObject("PartDesign::Body", "Body053")
doc.recompute()

body53.Placement = App.Placement(Vector(0, 0, 0), App.Rotation(Vector(0, 1, 0), 58))
boolean41 = body54.newObject("PartDesign::Boolean", "Boolean040")
boolean41.Type = "Fuse"
boolean41.addObjects([body53])
body55 = doc.addObject("PartDesign::Body", "Body054")
body55.AllowCompound = True
doc.recompute()

body54.Placement = App.Placement(Vector(12, 0, 16), App.Rotation(Vector(0, 0, 1), 0))
boolean42 = body55.newObject("PartDesign::Boolean", "Boolean041")
boolean42.Type = "Fuse"
boolean42.addObjects([body54])
doc.recompute()

boolean43 = body55.newObject("PartDesign::Boolean", "Boolean042")
boolean43.Type = "Fuse"
boolean43.addObjects([body52])
doc.recompute()

boolean44 = body55.newObject("PartDesign::Boolean", "Boolean043")
boolean44.Type = "Fuse"
boolean44.addObjects([body24])
doc.recompute()

boolean45 = body55.newObject("PartDesign::Boolean", "Boolean044")
boolean45.Type = "Fuse"
boolean45.addObjects([body32])
doc.recompute()

boolean46 = body55.newObject("PartDesign::Boolean", "Boolean045")
boolean46.Type = "Fuse"
boolean46.addObjects([body40])
doc.recompute()

boolean47 = body55.newObject("PartDesign::Boolean", "Boolean046")
boolean47.Type = "Fuse"
boolean47.addObjects([body48])
body56 = doc.addObject("PartDesign::Body", "Body055")
body56.AllowCompound = True
doc.recompute()

body55.Placement = App.Placement(Vector(0, 0, -1), App.Rotation(Vector(0, 0, 1), 0))
boolean48 = body56.newObject("PartDesign::Boolean", "Boolean047")
boolean48.Type = "Fuse"
boolean48.addObjects([body55])
body57 = doc.addObject("PartDesign::Body", "Body056")

# Sketch on XY plane
sketch22 = body57.newObject("Sketcher::SketchObject", "Sketch021")
sketch22.AttachmentSupport = (doc.getObject("XY_Plane056"), [""])
sketch22.MapMode = "FlatFace"
sketch22.addGeometry(Part.Circle(Vector(0, 0, 0), Vector(0, 0, 1), 20), False)
sketch22.addConstraint([
    Sketcher.Constraint("Coincident", 0, 3, -1, 1),
    Sketcher.Constraint("Diameter", 0, Q("40 mm")),
])
pad22 = body57.newObject("PartDesign::Pad", "Pad021")
pad22.Profile = sketch22
pad22.Length = 12
body58 = doc.addObject("PartDesign::Body", "Body057")

# Sketch on XZ plane
sketch23 = body58.newObject("Sketcher::SketchObject", "Sketch022")
sketch23.AttachmentSupport = (doc.getObject("XZ_Plane057"), [""])
sketch23.MapMode = "FlatFace"
add_polygon(sketch23, [(0, 9), (24, 9), (15, 19), (0, 19)])  # lines 0-3
sketch23.addConstraint([
    Sketcher.Constraint("Horizontal", 0),
    Sketcher.Constraint("Horizontal", 2),
    Sketcher.Constraint("Vertical", 3),
    Sketcher.Constraint("PointOnObject", 2, 2, -2),
    Sketcher.Constraint("DistanceX", 0, 1, 0, 2, Q("24 mm")),
    Sketcher.Constraint("DistanceX", 2, 2, 2, 1, Q("15 mm")),
    Sketcher.Constraint("DistanceY", 3, 2, 3, 1, Q("10 mm")),
    Sketcher.Constraint("DistanceY", -1, 1, 0, 2, Q("9 mm")),
])
revolution = body58.newObject("PartDesign::Revolution", "Revolution")
revolution.Profile = sketch23
revolution.ReferenceAxis = (sketch23, ["V_Axis"])
revolution.Angle = 360
body59 = doc.addObject("PartDesign::Body", "Body058")

# Sketch on XY plane
sketch24 = body59.newObject("Sketcher::SketchObject", "Sketch023")
sketch24.AttachmentSupport = (doc.getObject("XY_Plane058"), [""])
sketch24.MapMode = "FlatFace"
sketch24.addGeometry(Part.Circle(Vector(0, 0, 0), Vector(0, 0, 1), 10), False)
sketch24.addConstraint([
    Sketcher.Constraint("Coincident", 0, 3, -1, 1),
    Sketcher.Constraint("Diameter", 0, Q("20 mm")),
])
pad23 = body59.newObject("PartDesign::Pad", "Pad022")
pad23.Profile = sketch24
pad23.Length = 26
body60 = doc.addObject("PartDesign::Body", "Body059")

# Sketch on XZ plane
sketch25 = body60.newObject("Sketcher::SketchObject", "Sketch024")
sketch25.AttachmentSupport = (doc.getObject("XZ_Plane059"), [""])
sketch25.MapMode = "FlatFace"
add_polygon(sketch25, [(0, 15), (21, 15), (15, 22), (0, 22)])  # lines 0-3
sketch25.addConstraint([
    Sketcher.Constraint("Horizontal", 0),
    Sketcher.Constraint("Horizontal", 2),
    Sketcher.Constraint("Vertical", 3),
    Sketcher.Constraint("PointOnObject", 2, 2, -2),
    Sketcher.Constraint("DistanceX", 0, 1, 0, 2, Q("21 mm")),
    Sketcher.Constraint("DistanceX", 2, 2, 2, 1, Q("15 mm")),
    Sketcher.Constraint("DistanceY", 3, 2, 3, 1, Q("7 mm")),
    Sketcher.Constraint("DistanceY", -1, 1, 0, 2, Q("15 mm")),
])
revolution2 = body60.newObject("PartDesign::Revolution", "Revolution001")
revolution2.Profile = sketch25
revolution2.ReferenceAxis = (sketch25, ["V_Axis"])
revolution2.Angle = 360
doc.recompute()

boolean49 = body60.newObject("PartDesign::Boolean", "Boolean048")
boolean49.Type = "Cut"
boolean49.addObjects([body59])
doc.recompute()

boolean50 = body60.newObject("PartDesign::Boolean", "Boolean049")
boolean50.Type = "Cut"
boolean50.addObjects([body58])
body61 = doc.addObject("PartDesign::Body", "Body060")

# Sketch on XY plane
sketch26 = body61.newObject("Sketcher::SketchObject", "Sketch025")
sketch26.AttachmentSupport = (doc.getObject("XY_Plane060"), [""])
sketch26.MapMode = "FlatFace"
sketch26.AttachmentOffset = App.Placement(Vector(0, 0, 15), App.Rotation())
sketch26.addGeometry(Part.Circle(Vector(0, 0, 0), Vector(0, 0, 1), 20), False)
sketch26.addConstraint([
    Sketcher.Constraint("Coincident", 0, 3, -1, 1),
    Sketcher.Constraint("Diameter", 0, Q("41 mm")),
])
pad24 = body61.newObject("PartDesign::Pad", "Pad023")
pad24.Profile = sketch26
pad24.Length = 10
body62 = doc.addObject("PartDesign::Body", "Body061")

# Sketch on XY plane
sketch27 = body62.newObject("Sketcher::SketchObject", "Sketch026")
sketch27.AttachmentSupport = (doc.getObject("XY_Plane061"), [""])
sketch27.MapMode = "FlatFace"
sketch27.addGeometry(Part.Circle(Vector(0, 0, 0), Vector(0, 0, 1), 18), False)
sketch27.addConstraint([
    Sketcher.Constraint("Coincident", 0, 3, -1, 1),
    Sketcher.Constraint("Diameter", 0, Q("37 mm")),
])
pad25 = body62.newObject("PartDesign::Pad", "Pad024")
pad25.Profile = sketch27
pad25.Length = 20
body63 = doc.addObject("PartDesign::Body", "Body062")

# Sketch on XY plane
sketch28 = body63.newObject("Sketcher::SketchObject", "Sketch027")
sketch28.AttachmentSupport = (doc.getObject("XY_Plane062"), [""])
sketch28.MapMode = "FlatFace"
sketch28.addGeometry(Part.Circle(Vector(0, 0, 0), Vector(0, 0, 1), 22), False)
sketch28.addConstraint([
    Sketcher.Constraint("Coincident", 0, 3, -1, 1),
    Sketcher.Constraint("Diameter", 0, Q("44.2 mm")),
])
pad26 = body63.newObject("PartDesign::Pad", "Pad025")
pad26.Profile = sketch28
pad26.Length = 17
body64 = doc.addObject("PartDesign::Body", "Body063")

# Sketch on XY plane
sketch29 = body64.newObject("Sketcher::SketchObject", "Sketch028")
sketch29.AttachmentSupport = (doc.getObject("XY_Plane063"), [""])
sketch29.MapMode = "FlatFace"
sketch29.addGeometry(Part.Circle(Vector(0, 0, 0), Vector(0, 0, 1), 24), False)
sketch29.addConstraint([
    Sketcher.Constraint("Coincident", 0, 3, -1, 1),
    Sketcher.Constraint("Diameter", 0, Q("47 mm")),
])
pad27 = body64.newObject("PartDesign::Pad", "Pad026")
pad27.Profile = sketch29
pad27.Length = 17
doc.recompute()

boolean51 = body64.newObject("PartDesign::Boolean", "Boolean050")
boolean51.Type = "Cut"
boolean51.addObjects([body63])
body65 = doc.addObject("PartDesign::Body", "Body064")
doc.recompute()

body64.Placement = App.Placement(Vector(0, 0, 1.5), App.Rotation(Vector(0, 0, 1), 0))
boolean52 = body65.newObject("PartDesign::Boolean", "Boolean051")
boolean52.Type = "Fuse"
boolean52.addObjects([body64])
body66 = doc.addObject("PartDesign::Body", "Body065")

# Sketch on XY plane
sketch30 = body66.newObject("Sketcher::SketchObject", "Sketch029")
sketch30.AttachmentSupport = (doc.getObject("XY_Plane065"), [""])
sketch30.MapMode = "FlatFace"
sketch30.addGeometry(Part.Circle(Vector(0, 0, 0), Vector(0, 0, 1), 24), False)
sketch30.addConstraint([
    Sketcher.Constraint("Coincident", 0, 3, -1, 1),
    Sketcher.Constraint("Diameter", 0, Q("47 mm")),
])
pad28 = body66.newObject("PartDesign::Pad", "Pad027")
pad28.Profile = sketch30
pad28.Length = 20
doc.recompute()

boolean53 = body66.newObject("PartDesign::Boolean", "Boolean052")
boolean53.Type = "Cut"
boolean53.addObjects([body65])
body67 = doc.addObject("PartDesign::Body", "Body066")

# Sketch on XY plane
sketch31 = body67.newObject("Sketcher::SketchObject", "Sketch030")
sketch31.AttachmentSupport = (doc.getObject("XY_Plane066"), [""])
sketch31.MapMode = "FlatFace"
sketch31.addGeometry(Part.Circle(Vector(0, 0, 0), Vector(0, 0, 1), 22), False)
sketch31.addConstraint([
    Sketcher.Constraint("Coincident", 0, 3, -1, 1),
    Sketcher.Constraint("Diameter", 0, Q("44 mm")),
])
pad29 = body67.newObject("PartDesign::Pad", "Pad028")
pad29.Profile = sketch31
pad29.Length = 17
body68 = doc.addObject("PartDesign::Body", "Body067")

# Sketch on XY plane
sketch32 = body68.newObject("Sketcher::SketchObject", "Sketch031")
sketch32.AttachmentSupport = (doc.getObject("XY_Plane067"), [""])
sketch32.MapMode = "FlatFace"
sketch32.AttachmentOffset = App.Placement(Vector(0, 0, 0.5), App.Rotation())
sketch32.addGeometry(Part.Circle(Vector(0, 0, 0), Vector(0, 0, 1), 24), False)
sketch32.addConstraint([
    Sketcher.Constraint("Coincident", 0, 3, -1, 1),
    Sketcher.Constraint("Diameter", 0, Q("47 mm")),
])
pad30 = body68.newObject("PartDesign::Pad", "Pad029")
pad30.Profile = sketch32
pad30.Length = 10
doc.recompute()

boolean54 = body68.newObject("PartDesign::Boolean", "Boolean053")
boolean54.Type = "Cut"
boolean54.addObjects([body67])
body69 = doc.addObject("PartDesign::Body", "Body068")
doc.recompute()

body68.Placement = App.Placement(Vector(0, 0, 4.5), App.Rotation(Vector(0, 0, 1), 0))
boolean55 = body69.newObject("PartDesign::Boolean", "Boolean054")
boolean55.Type = "Fuse"
boolean55.addObjects([body68])
doc.recompute()

boolean56 = body69.newObject("PartDesign::Boolean", "Boolean055")
boolean56.Type = "Fuse"
boolean56.addObjects([body66])
doc.recompute()

boolean57 = body69.newObject("PartDesign::Boolean", "Boolean056")
boolean57.Type = "Cut"
boolean57.addObjects([body62])
doc.recompute()

boolean58 = body69.newObject("PartDesign::Boolean", "Boolean057")
boolean58.Type = "Cut"
boolean58.addObjects([body61])
doc.recompute()

fillet = body69.newObject("PartDesign::Fillet", "Fillet")
fillet.Base = (boolean58, edges_at(boolean58, [(-20.5, 0, 20)]))
fillet.Radius = 1
doc.recompute()

boolean59 = body69.newObject("PartDesign::Boolean", "Boolean058")
boolean59.Type = "Fuse"
boolean59.addObjects([body60])
doc.recompute()

boolean60 = body69.newObject("PartDesign::Boolean", "Boolean059")
boolean60.Type = "Cut"
boolean60.addObjects([body57])
doc.recompute()

chamfer = body69.newObject("PartDesign::Chamfer", "Chamfer")
chamfer.Base = (boolean60, edges_at(boolean60, [(-20, 0, 12)]))
chamfer.Size = 1.49
doc.recompute()

chamfer2 = body69.newObject("PartDesign::Chamfer", "Chamfer001")
chamfer2.Base = (chamfer, edges_at(chamfer, [(-20, 0, 0)]))
chamfer2.Size = 2
doc.recompute()

boolean61 = body69.newObject("PartDesign::Boolean", "Boolean060")
boolean61.Type = "Cut"
boolean61.addObjects([body56])
doc.recompute()

boolean62 = body69.newObject("PartDesign::Boolean", "Boolean061")
boolean62.Type = "Cut"
boolean62.addObjects([body16])
doc.recompute()

fillet2 = body69.newObject("PartDesign::Fillet", "Fillet001")
fillet2.Base = (boolean62, edges_at(boolean62, [(-15, 0, 22)]))
fillet2.Radius = 1.5
doc.recompute()

fillet3 = body69.newObject("PartDesign::Fillet", "Fillet002")
fillet3.Base = (fillet2, edges_at(fillet2, [(-22, 0, 0)]))
fillet3.Radius = 1.5
doc.recompute()

boolean63 = body69.newObject("PartDesign::Boolean", "Boolean062")
boolean63.Type = "Cut"
boolean63.addObjects([body])
mirroring.Visibility = False
mirroring2.Visibility = False
mirroring3.Visibility = False
mirroring4.Visibility = False
mirroring5.Visibility = False

doc.recompute()
